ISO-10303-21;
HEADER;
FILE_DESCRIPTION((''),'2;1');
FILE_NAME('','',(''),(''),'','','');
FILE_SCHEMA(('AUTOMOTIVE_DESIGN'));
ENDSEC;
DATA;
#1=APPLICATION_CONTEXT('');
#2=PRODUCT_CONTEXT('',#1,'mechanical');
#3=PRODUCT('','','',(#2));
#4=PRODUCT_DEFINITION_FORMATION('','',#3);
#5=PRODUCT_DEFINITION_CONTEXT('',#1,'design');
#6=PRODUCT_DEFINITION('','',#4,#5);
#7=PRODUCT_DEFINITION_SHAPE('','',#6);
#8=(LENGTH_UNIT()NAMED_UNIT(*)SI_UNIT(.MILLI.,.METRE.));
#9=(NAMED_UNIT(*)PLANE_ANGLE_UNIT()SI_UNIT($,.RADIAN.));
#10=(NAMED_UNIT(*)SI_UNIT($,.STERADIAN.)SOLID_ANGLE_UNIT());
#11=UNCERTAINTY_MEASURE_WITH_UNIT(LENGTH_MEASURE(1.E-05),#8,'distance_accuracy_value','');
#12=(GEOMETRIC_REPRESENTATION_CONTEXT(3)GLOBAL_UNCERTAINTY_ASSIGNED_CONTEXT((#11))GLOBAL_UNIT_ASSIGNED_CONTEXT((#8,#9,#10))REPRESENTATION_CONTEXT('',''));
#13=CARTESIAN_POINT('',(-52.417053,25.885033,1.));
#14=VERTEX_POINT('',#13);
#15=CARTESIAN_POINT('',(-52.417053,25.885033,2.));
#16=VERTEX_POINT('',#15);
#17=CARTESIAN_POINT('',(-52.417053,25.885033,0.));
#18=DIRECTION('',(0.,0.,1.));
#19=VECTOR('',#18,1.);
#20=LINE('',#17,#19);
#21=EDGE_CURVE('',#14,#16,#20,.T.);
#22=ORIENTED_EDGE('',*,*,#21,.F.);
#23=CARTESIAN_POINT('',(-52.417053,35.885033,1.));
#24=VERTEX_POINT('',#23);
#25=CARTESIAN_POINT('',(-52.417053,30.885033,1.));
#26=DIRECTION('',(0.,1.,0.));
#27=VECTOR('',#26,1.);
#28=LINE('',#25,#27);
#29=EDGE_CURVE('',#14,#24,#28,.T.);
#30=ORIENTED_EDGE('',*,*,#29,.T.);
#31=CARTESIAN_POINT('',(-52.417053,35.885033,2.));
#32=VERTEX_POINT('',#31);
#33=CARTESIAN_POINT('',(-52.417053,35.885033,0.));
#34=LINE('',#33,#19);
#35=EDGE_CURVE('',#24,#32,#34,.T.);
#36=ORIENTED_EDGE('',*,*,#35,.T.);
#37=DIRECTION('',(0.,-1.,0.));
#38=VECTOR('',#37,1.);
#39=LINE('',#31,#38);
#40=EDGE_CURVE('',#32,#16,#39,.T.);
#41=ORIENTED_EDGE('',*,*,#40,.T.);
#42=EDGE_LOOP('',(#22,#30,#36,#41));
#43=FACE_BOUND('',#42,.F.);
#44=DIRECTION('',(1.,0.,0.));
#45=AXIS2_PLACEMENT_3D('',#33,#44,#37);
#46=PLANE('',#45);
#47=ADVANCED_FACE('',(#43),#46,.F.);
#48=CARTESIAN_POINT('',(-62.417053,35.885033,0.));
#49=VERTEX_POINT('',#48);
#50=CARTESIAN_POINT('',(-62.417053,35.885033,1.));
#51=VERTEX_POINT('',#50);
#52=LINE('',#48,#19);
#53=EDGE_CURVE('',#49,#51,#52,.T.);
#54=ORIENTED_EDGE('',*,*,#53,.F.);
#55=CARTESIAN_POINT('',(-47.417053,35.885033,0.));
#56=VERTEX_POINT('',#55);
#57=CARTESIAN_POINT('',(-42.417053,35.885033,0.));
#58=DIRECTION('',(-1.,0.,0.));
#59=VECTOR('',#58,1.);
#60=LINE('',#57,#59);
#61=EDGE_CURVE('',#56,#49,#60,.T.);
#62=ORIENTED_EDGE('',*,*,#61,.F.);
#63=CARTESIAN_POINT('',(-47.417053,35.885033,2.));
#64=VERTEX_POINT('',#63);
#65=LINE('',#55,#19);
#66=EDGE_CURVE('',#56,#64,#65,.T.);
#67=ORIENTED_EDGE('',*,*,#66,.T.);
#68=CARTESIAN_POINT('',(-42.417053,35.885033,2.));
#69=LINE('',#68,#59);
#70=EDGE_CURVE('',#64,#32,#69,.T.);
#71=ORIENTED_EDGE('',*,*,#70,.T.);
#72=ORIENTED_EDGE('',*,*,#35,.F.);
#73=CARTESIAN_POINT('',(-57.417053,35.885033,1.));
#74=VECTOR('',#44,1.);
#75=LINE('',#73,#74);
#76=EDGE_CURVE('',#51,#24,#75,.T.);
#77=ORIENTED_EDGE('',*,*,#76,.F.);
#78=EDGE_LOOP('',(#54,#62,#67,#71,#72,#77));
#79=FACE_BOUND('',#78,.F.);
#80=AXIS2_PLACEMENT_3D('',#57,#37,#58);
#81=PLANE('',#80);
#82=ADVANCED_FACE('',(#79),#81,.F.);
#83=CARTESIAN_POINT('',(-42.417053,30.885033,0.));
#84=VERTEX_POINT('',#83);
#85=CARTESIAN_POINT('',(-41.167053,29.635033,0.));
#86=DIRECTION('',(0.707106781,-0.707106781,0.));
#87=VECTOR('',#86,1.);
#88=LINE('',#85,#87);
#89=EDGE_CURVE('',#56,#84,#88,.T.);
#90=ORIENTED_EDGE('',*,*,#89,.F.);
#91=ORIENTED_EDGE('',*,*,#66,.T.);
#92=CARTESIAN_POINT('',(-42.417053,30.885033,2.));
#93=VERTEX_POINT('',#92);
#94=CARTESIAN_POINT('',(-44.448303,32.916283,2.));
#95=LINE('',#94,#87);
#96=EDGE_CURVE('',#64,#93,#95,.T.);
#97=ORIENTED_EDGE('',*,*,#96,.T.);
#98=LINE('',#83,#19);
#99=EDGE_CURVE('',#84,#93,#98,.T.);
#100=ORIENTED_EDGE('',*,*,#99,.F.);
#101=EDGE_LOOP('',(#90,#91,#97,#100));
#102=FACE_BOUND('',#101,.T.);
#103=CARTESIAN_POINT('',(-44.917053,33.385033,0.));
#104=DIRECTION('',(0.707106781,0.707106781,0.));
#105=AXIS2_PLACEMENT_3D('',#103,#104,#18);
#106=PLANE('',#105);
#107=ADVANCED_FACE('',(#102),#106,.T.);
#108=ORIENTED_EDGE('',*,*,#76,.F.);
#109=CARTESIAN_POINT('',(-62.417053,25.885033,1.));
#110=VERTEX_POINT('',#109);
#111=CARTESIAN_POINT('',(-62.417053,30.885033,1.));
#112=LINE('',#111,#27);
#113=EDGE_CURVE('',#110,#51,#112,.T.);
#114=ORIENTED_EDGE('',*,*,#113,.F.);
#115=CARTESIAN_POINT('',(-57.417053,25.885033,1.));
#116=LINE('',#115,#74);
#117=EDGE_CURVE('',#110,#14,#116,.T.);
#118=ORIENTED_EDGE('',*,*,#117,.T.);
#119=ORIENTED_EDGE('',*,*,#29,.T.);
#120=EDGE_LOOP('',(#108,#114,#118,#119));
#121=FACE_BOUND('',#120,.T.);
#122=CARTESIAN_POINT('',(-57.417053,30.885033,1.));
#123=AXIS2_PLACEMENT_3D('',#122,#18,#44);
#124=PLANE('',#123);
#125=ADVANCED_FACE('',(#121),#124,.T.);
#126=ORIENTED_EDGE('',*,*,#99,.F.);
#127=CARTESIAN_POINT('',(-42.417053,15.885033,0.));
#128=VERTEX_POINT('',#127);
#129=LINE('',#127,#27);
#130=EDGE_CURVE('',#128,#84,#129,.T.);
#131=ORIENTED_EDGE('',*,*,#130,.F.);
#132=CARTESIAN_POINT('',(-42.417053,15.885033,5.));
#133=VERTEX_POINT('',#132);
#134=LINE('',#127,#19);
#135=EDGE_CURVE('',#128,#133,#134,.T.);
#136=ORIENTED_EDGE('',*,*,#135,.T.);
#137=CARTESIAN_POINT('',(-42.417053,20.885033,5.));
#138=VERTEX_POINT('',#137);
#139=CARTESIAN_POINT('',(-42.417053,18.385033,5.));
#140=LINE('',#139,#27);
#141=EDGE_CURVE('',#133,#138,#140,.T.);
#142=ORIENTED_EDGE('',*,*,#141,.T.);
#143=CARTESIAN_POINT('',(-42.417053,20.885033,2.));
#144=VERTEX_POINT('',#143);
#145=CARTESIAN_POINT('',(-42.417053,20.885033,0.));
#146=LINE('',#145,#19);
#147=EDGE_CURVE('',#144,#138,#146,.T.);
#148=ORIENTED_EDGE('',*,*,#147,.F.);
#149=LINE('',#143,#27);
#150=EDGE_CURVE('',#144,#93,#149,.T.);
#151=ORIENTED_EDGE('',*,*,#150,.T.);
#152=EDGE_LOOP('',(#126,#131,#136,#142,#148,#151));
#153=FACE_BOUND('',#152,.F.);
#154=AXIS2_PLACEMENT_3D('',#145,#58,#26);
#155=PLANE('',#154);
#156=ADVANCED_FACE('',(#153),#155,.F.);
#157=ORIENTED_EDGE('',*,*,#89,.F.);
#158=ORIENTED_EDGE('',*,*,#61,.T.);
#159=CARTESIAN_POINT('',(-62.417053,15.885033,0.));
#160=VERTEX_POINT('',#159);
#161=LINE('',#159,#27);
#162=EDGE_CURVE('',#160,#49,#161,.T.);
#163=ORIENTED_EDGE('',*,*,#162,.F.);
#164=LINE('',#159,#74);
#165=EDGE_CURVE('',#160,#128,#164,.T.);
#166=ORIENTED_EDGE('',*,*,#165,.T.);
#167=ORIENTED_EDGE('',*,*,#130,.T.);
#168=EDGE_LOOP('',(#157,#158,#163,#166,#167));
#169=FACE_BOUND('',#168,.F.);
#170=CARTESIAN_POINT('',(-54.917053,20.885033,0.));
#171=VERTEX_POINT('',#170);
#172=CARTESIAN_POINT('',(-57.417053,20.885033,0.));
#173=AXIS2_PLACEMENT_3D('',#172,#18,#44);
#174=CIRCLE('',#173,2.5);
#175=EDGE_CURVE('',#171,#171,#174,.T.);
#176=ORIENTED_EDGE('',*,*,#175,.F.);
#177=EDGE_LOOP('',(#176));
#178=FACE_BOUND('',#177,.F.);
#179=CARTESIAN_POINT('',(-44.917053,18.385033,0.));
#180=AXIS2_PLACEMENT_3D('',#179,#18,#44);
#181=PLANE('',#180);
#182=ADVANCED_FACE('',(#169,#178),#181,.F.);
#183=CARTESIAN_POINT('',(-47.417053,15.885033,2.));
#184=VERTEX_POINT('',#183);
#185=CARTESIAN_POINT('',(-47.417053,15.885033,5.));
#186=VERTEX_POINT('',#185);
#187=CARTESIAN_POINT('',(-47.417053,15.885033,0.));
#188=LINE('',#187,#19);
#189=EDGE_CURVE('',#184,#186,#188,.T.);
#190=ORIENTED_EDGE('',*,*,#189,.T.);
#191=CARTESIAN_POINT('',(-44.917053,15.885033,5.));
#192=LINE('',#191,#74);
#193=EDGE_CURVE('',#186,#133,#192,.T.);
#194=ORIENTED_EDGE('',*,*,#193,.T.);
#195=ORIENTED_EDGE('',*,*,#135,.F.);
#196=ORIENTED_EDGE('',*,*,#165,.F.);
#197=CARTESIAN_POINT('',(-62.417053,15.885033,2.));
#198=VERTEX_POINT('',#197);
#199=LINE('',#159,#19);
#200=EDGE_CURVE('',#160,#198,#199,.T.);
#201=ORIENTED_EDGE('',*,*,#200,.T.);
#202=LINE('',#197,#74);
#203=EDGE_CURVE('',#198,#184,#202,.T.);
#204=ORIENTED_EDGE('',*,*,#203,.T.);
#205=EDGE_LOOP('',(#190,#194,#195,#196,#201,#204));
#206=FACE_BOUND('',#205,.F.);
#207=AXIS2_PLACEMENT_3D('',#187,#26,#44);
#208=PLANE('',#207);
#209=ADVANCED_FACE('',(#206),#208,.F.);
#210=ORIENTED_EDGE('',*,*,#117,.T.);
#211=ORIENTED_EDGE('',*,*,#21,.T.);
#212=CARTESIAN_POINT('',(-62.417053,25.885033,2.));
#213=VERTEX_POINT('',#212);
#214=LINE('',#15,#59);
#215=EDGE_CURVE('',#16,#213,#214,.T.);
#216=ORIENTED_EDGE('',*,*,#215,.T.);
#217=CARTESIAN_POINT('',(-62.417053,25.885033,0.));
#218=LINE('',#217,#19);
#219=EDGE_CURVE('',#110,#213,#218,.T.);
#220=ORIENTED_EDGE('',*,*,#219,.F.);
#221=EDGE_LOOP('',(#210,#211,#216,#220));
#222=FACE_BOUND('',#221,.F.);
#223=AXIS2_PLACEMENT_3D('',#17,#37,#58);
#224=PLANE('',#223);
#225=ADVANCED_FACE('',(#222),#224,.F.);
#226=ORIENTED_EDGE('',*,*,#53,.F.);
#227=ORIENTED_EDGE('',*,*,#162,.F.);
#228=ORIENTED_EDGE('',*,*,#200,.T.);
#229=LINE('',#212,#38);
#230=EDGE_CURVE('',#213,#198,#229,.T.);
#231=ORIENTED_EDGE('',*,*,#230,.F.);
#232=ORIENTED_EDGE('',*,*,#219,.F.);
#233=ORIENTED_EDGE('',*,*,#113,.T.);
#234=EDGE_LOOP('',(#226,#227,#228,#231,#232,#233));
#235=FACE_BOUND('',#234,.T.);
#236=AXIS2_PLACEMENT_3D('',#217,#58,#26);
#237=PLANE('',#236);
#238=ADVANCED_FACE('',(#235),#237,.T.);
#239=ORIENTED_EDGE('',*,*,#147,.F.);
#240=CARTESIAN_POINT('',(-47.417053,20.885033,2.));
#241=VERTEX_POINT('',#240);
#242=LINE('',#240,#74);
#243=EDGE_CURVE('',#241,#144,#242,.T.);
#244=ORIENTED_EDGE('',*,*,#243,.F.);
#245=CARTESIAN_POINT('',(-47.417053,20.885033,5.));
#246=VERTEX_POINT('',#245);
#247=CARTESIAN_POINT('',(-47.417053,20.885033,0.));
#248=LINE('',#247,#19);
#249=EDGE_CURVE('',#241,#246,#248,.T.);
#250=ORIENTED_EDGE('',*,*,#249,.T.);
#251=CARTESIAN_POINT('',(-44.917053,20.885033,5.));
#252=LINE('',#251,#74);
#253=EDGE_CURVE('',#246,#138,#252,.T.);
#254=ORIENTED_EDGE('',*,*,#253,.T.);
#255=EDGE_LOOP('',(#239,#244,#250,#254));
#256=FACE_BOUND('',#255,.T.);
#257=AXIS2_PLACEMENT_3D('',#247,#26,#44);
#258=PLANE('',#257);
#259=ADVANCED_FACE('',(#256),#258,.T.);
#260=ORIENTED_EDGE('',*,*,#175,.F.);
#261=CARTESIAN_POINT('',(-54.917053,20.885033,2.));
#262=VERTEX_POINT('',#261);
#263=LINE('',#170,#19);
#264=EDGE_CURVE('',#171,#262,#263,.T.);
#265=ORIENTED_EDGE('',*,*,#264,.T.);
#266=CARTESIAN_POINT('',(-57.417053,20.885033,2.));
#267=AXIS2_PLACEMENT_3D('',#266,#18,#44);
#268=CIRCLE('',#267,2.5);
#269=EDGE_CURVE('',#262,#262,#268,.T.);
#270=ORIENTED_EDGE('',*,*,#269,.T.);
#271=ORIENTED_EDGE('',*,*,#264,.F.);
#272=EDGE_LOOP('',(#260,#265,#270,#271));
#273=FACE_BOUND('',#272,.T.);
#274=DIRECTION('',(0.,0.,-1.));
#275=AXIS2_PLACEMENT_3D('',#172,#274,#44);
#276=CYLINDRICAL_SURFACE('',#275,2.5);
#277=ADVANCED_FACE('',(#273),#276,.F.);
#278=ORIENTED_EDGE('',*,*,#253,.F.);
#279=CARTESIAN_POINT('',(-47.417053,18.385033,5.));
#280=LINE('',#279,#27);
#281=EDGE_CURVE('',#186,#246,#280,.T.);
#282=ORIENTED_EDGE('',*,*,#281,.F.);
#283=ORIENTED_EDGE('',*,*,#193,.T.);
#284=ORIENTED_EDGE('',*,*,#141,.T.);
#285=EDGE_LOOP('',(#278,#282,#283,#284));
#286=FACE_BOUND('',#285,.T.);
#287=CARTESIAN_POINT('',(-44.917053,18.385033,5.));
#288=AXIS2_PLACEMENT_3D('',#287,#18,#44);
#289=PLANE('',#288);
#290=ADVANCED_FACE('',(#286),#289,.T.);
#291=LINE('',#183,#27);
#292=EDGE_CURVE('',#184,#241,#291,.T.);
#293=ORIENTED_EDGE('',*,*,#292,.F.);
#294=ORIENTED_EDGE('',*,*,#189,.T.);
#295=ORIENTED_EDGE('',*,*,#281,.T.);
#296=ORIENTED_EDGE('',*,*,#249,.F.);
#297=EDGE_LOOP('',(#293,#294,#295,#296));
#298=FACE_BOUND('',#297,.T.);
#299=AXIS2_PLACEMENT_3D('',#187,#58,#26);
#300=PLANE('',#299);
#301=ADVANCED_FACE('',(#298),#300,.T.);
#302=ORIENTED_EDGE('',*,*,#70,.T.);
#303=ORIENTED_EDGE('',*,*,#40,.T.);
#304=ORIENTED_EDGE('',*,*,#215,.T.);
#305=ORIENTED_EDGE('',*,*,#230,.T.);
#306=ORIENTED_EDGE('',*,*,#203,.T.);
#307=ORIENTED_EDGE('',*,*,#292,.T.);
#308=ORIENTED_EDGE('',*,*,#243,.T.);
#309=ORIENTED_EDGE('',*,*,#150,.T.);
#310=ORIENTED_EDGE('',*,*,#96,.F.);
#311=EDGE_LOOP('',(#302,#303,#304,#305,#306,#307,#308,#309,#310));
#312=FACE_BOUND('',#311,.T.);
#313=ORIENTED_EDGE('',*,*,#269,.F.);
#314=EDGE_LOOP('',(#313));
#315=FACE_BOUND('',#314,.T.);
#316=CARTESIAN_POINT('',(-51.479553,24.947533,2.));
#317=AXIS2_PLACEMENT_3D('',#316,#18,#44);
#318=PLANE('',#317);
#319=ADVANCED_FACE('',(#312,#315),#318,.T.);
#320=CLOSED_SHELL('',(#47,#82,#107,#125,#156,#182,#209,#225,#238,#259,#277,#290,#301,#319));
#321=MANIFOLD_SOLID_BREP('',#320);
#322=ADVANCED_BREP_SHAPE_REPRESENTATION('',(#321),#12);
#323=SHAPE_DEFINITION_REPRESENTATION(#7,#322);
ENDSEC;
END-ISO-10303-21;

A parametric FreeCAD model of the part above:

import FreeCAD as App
import Part
import Sketcher

V = App.Vector
Q = App.Units.Quantity


def edges_at(feature, points):
    """Names of the edges that pass closest to the given points."""
    edges = feature.Shape.Edges
    near = lambda p: min(range(len(edges)), key=lambda i: edges[i].distToShape(Part.Vertex(*p))[0])
    return sorted({f"Edge{near(p) + 1}" for p in points})


def add_polygon(sketch, points):
    """Adds a closed chain of lines whose ends are joined by coincident constraints."""
    first, n = sketch.GeometryCount, len(points)
    for a, b in zip(points, points[1:] + points[:1]):
        sketch.addGeometry(Part.LineSegment(App.Vector(*a, 0), App.Vector(*b, 0)), False)
    for i in range(n):
        sketch.addConstraint(Sketcher.Constraint("Coincident", first + i, 2, first + (i + 1) % n, 1))

doc = App.newDocument("Part")
body = doc.addObject("PartDesign::Body", "Body")

sketch1 = body.newObject("Sketcher::SketchObject", "Sketch")
sketch1.AttachmentSupport = (doc.getObject("XY_Plane"), [""])
sketch1.MapMode = "FlatFace"
add_polygon(sketch1, [(-62, 36), (-62, 26), (-52, 26), (-52, 36)])
sketch1.addConstraint(Sketcher.Constraint("Vertical", 0))
sketch1.addConstraint(Sketcher.Constraint("Horizontal", 1))
sketch1.addConstraint(Sketcher.Constraint("Vertical", 2))
sketch1.addConstraint(Sketcher.Constraint("Horizontal", 3))
sketch1.addConstraint(Sketcher.Constraint("Equal", 3, 0))
sketch1.addConstraint(Sketcher.Constraint("DistanceX", 1, 1, 1, 2, Q("10 mm")))
sketch1.addConstraint(Sketcher.Constraint("DistanceX", 0, 2, -1, 1, Q("62.417053 mm")))
sketch1.addConstraint(Sketcher.Constraint("DistanceY", -1, 1, 0, 2, Q("25.885033 mm")))
pad1 = body.newObject("PartDesign::Pad", "Pad")
pad1.Profile = sketch1
pad1.Length = 1

sketch2 = body.newObject("Sketcher::SketchObject", "Sketch001")
sketch2.AttachmentSupport = (doc.getObject("XY_Plane"), [""])
sketch2.MapMode = "FlatFace"
add_polygon(sketch2, [(-42.4, 35.9), (-52.4, 35.9), (-52.4, 25.9), (-62.4, 25.9), (-62.4, 15.9), (-47.4, 15.9), (-47.4, 20.9), (-42.4, 20.9)])
sketch2.addGeometry(Part.Circle(V(-57.4, 20.9, 0), V(0, 0, 1), 2.5), False)
sketch2.addConstraint(Sketcher.Constraint("Horizontal", 0))
sketch2.addConstraint(Sketcher.Constraint("Vertical", 1))
sketch2.addConstraint(Sketcher.Constraint("Horizontal", 2))
sketch2.addConstraint(Sketcher.Constraint("Vertical", 3))
sketch2.addConstraint(Sketcher.Constraint("Horizontal", 4))
sketch2.addConstraint(Sketcher.Constraint("Vertical", 5))
sketch2.addConstraint(Sketcher.Constraint("Horizontal", 6))
sketch2.addConstraint(Sketcher.Constraint("Vertical", 7))
sketch2.addConstraint(Sketcher.Constraint("Horizontal", 8, 3, 5, 2))
sketch2.addConstraint(Sketcher.Constraint("Equal", 0, 2))
sketch2.addConstraint(Sketcher.Constraint("Equal", 2, 1))
sketch2.addConstraint(Sketcher.Constraint("Equal", 1, 3))
sketch2.addConstraint(Sketcher.Constraint("Equal", 6, 5))
sketch2.addConstraint(Sketcher.Constraint("Diameter", 8, Q("5 mm")))
sketch2.addConstraint(Sketcher.Constraint("DistanceX", 0, 2, 0, 1, Q("10 mm")))
sketch2.addConstraint(Sketcher.Constraint("DistanceX", 4, 1, 4, 2, Q("15 mm")))
sketch2.addConstraint(Sketcher.Constraint("DistanceX", 8, 3, 0, 2, Q("5 mm")))
sketch2.addConstraint(Sketcher.Constraint("DistanceX", 8, 3, -1, 1, Q("57.417053 mm")))
sketch2.addConstraint(Sketcher.Constraint("DistanceY", -1, 1, 8, 3, Q("20.885033 mm")))
pad2 = body.newObject("PartDesign::Pad", "Pad001")
pad2.Profile = sketch2
pad2.Length = 2

sketch3 = body.newObject("Sketcher::SketchObject", "Sketch002")
sketch3.AttachmentSupport = (doc.getObject("XY_Plane"), [""])
sketch3.MapMode = "FlatFace"
add_polygon(sketch3, [(-47, 21), (-47, 16), (-42, 16), (-42, 21)])
sketch3.addConstraint(Sketcher.Constraint("Vertical", 0))
sketch3.addConstraint(Sketcher.Constraint("Horizontal", 1))
sketch3.addConstraint(Sketcher.Constraint("Vertical", 2))
sketch3.addConstraint(Sketcher.Constraint("Horizontal", 3))
sketch3.addConstraint(Sketcher.Constraint("Equal", 3, 0))
sketch3.addConstraint(Sketcher.Constraint("DistanceX", 1, 1, 1, 2, Q("5 mm")))
sketch3.addConstraint(Sketcher.Constraint("DistanceX", 0, 2, -1, 1, Q("47.417053 mm")))
sketch3.addConstraint(Sketcher.Constraint("DistanceY", -1, 1, 0, 2, Q("15.885033 mm")))
pad3 = body.newObject("PartDesign::Pad", "Pad002")
pad3.Profile = sketch3
pad3.Length = 5
doc.recompute()

chamfer = body.newObject("PartDesign::Chamfer", "Chamfer")
chamfer.Base = (pad3, edges_at(pad3, [(-42.417, 35.885, 1)]))
chamfer.Size = 5

doc.recompute()
